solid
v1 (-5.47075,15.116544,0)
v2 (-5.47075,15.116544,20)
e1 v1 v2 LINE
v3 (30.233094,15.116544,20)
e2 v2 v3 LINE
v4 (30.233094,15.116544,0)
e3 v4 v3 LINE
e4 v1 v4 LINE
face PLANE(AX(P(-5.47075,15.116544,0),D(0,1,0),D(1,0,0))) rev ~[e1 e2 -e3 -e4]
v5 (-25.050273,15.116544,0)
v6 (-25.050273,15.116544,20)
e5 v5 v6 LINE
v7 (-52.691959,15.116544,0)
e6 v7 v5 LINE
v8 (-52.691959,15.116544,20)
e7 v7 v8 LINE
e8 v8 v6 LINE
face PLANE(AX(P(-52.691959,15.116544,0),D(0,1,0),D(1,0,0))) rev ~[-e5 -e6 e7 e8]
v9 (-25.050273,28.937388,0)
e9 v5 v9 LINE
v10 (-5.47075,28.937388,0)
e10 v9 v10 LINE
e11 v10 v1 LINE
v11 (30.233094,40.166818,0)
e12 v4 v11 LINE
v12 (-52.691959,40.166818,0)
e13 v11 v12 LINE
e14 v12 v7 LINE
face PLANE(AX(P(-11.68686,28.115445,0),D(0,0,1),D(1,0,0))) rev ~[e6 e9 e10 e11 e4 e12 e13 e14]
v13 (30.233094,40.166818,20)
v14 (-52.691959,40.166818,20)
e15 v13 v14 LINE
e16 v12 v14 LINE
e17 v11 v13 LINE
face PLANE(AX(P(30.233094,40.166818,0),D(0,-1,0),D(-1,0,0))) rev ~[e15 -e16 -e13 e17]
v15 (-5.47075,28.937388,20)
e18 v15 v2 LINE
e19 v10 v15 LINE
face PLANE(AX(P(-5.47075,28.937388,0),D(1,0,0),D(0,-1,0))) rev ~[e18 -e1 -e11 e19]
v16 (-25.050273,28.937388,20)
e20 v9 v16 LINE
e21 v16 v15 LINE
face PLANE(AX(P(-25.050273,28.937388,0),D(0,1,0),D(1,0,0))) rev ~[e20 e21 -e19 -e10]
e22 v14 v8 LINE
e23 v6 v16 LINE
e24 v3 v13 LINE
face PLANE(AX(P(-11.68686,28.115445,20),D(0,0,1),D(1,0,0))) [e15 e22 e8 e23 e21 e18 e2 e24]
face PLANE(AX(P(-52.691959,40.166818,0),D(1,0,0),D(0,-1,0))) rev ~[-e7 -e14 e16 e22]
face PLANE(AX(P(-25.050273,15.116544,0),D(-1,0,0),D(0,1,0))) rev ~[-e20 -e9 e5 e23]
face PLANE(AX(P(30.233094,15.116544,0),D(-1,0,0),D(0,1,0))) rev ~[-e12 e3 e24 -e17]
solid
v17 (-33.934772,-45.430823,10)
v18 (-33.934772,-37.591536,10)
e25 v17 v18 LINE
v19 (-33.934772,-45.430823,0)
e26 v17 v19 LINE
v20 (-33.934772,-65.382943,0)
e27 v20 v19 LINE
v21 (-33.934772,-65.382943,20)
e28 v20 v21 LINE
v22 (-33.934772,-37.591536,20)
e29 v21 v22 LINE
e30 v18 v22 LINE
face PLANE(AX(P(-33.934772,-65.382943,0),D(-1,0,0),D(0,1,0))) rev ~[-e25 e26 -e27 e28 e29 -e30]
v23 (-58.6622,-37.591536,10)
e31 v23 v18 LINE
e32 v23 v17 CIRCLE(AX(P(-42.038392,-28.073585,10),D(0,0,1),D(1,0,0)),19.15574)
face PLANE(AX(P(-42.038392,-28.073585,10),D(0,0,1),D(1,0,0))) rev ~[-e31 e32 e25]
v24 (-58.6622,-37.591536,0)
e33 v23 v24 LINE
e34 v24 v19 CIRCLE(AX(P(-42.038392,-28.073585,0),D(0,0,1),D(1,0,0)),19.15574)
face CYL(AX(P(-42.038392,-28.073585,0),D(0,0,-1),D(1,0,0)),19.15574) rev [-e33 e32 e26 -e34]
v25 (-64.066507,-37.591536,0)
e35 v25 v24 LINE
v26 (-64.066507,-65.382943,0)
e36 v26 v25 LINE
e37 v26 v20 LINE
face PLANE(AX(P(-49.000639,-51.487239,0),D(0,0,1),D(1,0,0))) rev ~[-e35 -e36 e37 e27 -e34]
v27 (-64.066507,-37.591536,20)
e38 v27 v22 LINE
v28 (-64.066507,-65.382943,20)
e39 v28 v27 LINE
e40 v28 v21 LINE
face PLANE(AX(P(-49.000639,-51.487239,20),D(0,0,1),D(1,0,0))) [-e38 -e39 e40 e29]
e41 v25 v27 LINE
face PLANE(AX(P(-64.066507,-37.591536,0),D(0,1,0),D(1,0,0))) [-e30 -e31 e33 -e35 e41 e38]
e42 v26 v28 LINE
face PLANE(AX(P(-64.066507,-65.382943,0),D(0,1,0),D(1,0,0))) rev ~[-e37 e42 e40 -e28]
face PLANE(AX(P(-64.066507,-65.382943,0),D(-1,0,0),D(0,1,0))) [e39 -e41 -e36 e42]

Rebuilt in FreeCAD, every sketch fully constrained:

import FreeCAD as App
import Part
import Sketcher
from FreeCAD import Vector

doc = App.newDocument("Part")
body = doc.addObject("PartDesign::Body", "Body")

sketch1 = body.newObject("Sketcher::SketchObject", "Sketch")
sketch1.AttachmentSupport = (doc.getObject("XY_Plane"), [""])
sketch1.MapMode = "FlatFace"
sketch1.addGeometry([
    Part.LineSegment(Vector(-64, -38, 0), Vector(-64, -65, 0)),
    Part.LineSegment(Vector(-64, -65, 0), Vector(-34, -65, 0)),
    Part.LineSegment(Vector(-34, -65, 0), Vector(-34, -38, 0)),
    Part.LineSegment(Vector(-34, -38, 0), Vector(-64, -38, 0)),
], False)
sketch1.addConstraint([
    Sketcher.Constraint("Coincident", 0, 2, 1, 1),
    Sketcher.Constraint("Coincident", 1, 2, 2, 1),
    Sketcher.Constraint("Coincident", 2, 2, 3, 1),
    Sketcher.Constraint("Coincident", 3, 2, 0, 1),
    Sketcher.Constraint("Vertical", 0),
    Sketcher.Constraint("Horizontal", 1),
    Sketcher.Constraint("Vertical", 2),
    Sketcher.Constraint("Horizontal", 3),
    Sketcher.Constraint("DistanceX", 1, 1, 1, 2, 30.131735),
    Sketcher.Constraint("DistanceY", 0, 2, 0, 1, 27.791407),
    Sketcher.Constraint("DistanceX", 0, 2, -1, 1, 64.066507),
    Sketcher.Constraint("DistanceY", 0, 2, -1, 1, 65.382943),
])
pad1 = body.newObject("PartDesign::Pad", "Pad")
pad1.Profile = sketch1
pad1.Length = 20

sketch2 = body.newObject("Sketcher::SketchObject", "Sketch001")
sketch2.AttachmentSupport = (doc.getObject("XY_Plane"), [""])
sketch2.MapMode = "FlatFace"
sketch2.addGeometry(Part.Circle(Vector(-42, -28, 0), Vector(0, 0, 1), 19), False)
sketch2.addConstraint([
    Sketcher.Constraint("Diameter", 0, 38.31148),
    Sketcher.Constraint("DistanceX", 0, 3, -1, 1, 42.038392),
    Sketcher.Constraint("DistanceY", 0, 3, -1, 1, 28.073585),
])
pocket1 = body.newObject("PartDesign::Pocket", "Pocket")
pocket1.Profile = sketch2
pocket1.Length = 10
pocket1.Reversed = True
body2 = doc.addObject("PartDesign::Body", "Body001")

sketch3 = body2.newObject("Sketcher::SketchObject", "Sketch002")
sketch3.AttachmentSupport = (doc.getObject("XY_Plane001"), [""])
sketch3.MapMode = "FlatFace"
sketch3.addGeometry([
    Part.LineSegment(Vector(30, 40, 0), Vector(-53, 40, 0)),
    Part.LineSegment(Vector(-53, 40, 0), Vector(-53, 15, 0)),
    Part.LineSegment(Vector(-53, 15, 0), Vector(-25, 15, 0)),
    Part.LineSegment(Vector(-25, 15, 0), Vector(-25, 29, 0)),
    Part.LineSegment(Vector(-25, 29, 0), Vector(-5, 29, 0)),
    Part.LineSegment(Vector(-5, 29, 0), Vector(-5, 15, 0)),
    Part.LineSegment(Vector(-5, 15, 0), Vector(30, 15, 0)),
    Part.LineSegment(Vector(30, 15, 0), Vector(30, 40, 0)),
], False)
sketch3.addConstraint([
    Sketcher.Constraint("Coincident", 0, 2, 1, 1),
    Sketcher.Constraint("Coincident", 1, 2, 2, 1),
    Sketcher.Constraint("Coincident", 2, 2, 3, 1),
    Sketcher.Constraint("Coincident", 3, 2, 4, 1),
    Sketcher.Constraint("Coincident", 4, 2, 5, 1),
    Sketcher.Constraint("Coincident", 5, 2, 6, 1),
    Sketcher.Constraint("Coincident", 6, 2, 7, 1),
    Sketcher.Constraint("Coincident", 7, 2, 0, 1),
    Sketcher.Constraint("Horizontal", 0),
    Sketcher.Constraint("Vertical", 1),
    Sketcher.Constraint("Horizontal", 2),
    Sketcher.Constraint("Vertical", 3),
    Sketcher.Constraint("Horizontal", 4),
    Sketcher.Constraint("Vertical", 5),
    Sketcher.Constraint("Horizontal", 6),
    Sketcher.Constraint("Vertical", 7),
    Sketcher.Constraint("Horizontal", 2, 2, 5, 2),
    Sketcher.Constraint("DistanceX", 0, 2, 0, 1, 82.925053),
    Sketcher.Constraint("DistanceX", 2, 1, 2, 2, 27.641686),
    Sketcher.Constraint("DistanceX", 4, 1, 4, 2, 19.579523),
    Sketcher.Constraint("DistanceY", 1, 2, 1, 1, 25.050273),
    Sketcher.Constraint("DistanceY", 3, 1, 3, 2, 13.820844),
    Sketcher.Constraint("DistanceX", 0, 2, -1, 1, 52.691959),
    Sketcher.Constraint("DistanceY", -1, 1, 3, 2, 28.937388),
])
pad2 = body2.newObject("PartDesign::Pad", "Pad001")
pad2.Profile = sketch3
pad2.Length = 20

doc.recompute()
